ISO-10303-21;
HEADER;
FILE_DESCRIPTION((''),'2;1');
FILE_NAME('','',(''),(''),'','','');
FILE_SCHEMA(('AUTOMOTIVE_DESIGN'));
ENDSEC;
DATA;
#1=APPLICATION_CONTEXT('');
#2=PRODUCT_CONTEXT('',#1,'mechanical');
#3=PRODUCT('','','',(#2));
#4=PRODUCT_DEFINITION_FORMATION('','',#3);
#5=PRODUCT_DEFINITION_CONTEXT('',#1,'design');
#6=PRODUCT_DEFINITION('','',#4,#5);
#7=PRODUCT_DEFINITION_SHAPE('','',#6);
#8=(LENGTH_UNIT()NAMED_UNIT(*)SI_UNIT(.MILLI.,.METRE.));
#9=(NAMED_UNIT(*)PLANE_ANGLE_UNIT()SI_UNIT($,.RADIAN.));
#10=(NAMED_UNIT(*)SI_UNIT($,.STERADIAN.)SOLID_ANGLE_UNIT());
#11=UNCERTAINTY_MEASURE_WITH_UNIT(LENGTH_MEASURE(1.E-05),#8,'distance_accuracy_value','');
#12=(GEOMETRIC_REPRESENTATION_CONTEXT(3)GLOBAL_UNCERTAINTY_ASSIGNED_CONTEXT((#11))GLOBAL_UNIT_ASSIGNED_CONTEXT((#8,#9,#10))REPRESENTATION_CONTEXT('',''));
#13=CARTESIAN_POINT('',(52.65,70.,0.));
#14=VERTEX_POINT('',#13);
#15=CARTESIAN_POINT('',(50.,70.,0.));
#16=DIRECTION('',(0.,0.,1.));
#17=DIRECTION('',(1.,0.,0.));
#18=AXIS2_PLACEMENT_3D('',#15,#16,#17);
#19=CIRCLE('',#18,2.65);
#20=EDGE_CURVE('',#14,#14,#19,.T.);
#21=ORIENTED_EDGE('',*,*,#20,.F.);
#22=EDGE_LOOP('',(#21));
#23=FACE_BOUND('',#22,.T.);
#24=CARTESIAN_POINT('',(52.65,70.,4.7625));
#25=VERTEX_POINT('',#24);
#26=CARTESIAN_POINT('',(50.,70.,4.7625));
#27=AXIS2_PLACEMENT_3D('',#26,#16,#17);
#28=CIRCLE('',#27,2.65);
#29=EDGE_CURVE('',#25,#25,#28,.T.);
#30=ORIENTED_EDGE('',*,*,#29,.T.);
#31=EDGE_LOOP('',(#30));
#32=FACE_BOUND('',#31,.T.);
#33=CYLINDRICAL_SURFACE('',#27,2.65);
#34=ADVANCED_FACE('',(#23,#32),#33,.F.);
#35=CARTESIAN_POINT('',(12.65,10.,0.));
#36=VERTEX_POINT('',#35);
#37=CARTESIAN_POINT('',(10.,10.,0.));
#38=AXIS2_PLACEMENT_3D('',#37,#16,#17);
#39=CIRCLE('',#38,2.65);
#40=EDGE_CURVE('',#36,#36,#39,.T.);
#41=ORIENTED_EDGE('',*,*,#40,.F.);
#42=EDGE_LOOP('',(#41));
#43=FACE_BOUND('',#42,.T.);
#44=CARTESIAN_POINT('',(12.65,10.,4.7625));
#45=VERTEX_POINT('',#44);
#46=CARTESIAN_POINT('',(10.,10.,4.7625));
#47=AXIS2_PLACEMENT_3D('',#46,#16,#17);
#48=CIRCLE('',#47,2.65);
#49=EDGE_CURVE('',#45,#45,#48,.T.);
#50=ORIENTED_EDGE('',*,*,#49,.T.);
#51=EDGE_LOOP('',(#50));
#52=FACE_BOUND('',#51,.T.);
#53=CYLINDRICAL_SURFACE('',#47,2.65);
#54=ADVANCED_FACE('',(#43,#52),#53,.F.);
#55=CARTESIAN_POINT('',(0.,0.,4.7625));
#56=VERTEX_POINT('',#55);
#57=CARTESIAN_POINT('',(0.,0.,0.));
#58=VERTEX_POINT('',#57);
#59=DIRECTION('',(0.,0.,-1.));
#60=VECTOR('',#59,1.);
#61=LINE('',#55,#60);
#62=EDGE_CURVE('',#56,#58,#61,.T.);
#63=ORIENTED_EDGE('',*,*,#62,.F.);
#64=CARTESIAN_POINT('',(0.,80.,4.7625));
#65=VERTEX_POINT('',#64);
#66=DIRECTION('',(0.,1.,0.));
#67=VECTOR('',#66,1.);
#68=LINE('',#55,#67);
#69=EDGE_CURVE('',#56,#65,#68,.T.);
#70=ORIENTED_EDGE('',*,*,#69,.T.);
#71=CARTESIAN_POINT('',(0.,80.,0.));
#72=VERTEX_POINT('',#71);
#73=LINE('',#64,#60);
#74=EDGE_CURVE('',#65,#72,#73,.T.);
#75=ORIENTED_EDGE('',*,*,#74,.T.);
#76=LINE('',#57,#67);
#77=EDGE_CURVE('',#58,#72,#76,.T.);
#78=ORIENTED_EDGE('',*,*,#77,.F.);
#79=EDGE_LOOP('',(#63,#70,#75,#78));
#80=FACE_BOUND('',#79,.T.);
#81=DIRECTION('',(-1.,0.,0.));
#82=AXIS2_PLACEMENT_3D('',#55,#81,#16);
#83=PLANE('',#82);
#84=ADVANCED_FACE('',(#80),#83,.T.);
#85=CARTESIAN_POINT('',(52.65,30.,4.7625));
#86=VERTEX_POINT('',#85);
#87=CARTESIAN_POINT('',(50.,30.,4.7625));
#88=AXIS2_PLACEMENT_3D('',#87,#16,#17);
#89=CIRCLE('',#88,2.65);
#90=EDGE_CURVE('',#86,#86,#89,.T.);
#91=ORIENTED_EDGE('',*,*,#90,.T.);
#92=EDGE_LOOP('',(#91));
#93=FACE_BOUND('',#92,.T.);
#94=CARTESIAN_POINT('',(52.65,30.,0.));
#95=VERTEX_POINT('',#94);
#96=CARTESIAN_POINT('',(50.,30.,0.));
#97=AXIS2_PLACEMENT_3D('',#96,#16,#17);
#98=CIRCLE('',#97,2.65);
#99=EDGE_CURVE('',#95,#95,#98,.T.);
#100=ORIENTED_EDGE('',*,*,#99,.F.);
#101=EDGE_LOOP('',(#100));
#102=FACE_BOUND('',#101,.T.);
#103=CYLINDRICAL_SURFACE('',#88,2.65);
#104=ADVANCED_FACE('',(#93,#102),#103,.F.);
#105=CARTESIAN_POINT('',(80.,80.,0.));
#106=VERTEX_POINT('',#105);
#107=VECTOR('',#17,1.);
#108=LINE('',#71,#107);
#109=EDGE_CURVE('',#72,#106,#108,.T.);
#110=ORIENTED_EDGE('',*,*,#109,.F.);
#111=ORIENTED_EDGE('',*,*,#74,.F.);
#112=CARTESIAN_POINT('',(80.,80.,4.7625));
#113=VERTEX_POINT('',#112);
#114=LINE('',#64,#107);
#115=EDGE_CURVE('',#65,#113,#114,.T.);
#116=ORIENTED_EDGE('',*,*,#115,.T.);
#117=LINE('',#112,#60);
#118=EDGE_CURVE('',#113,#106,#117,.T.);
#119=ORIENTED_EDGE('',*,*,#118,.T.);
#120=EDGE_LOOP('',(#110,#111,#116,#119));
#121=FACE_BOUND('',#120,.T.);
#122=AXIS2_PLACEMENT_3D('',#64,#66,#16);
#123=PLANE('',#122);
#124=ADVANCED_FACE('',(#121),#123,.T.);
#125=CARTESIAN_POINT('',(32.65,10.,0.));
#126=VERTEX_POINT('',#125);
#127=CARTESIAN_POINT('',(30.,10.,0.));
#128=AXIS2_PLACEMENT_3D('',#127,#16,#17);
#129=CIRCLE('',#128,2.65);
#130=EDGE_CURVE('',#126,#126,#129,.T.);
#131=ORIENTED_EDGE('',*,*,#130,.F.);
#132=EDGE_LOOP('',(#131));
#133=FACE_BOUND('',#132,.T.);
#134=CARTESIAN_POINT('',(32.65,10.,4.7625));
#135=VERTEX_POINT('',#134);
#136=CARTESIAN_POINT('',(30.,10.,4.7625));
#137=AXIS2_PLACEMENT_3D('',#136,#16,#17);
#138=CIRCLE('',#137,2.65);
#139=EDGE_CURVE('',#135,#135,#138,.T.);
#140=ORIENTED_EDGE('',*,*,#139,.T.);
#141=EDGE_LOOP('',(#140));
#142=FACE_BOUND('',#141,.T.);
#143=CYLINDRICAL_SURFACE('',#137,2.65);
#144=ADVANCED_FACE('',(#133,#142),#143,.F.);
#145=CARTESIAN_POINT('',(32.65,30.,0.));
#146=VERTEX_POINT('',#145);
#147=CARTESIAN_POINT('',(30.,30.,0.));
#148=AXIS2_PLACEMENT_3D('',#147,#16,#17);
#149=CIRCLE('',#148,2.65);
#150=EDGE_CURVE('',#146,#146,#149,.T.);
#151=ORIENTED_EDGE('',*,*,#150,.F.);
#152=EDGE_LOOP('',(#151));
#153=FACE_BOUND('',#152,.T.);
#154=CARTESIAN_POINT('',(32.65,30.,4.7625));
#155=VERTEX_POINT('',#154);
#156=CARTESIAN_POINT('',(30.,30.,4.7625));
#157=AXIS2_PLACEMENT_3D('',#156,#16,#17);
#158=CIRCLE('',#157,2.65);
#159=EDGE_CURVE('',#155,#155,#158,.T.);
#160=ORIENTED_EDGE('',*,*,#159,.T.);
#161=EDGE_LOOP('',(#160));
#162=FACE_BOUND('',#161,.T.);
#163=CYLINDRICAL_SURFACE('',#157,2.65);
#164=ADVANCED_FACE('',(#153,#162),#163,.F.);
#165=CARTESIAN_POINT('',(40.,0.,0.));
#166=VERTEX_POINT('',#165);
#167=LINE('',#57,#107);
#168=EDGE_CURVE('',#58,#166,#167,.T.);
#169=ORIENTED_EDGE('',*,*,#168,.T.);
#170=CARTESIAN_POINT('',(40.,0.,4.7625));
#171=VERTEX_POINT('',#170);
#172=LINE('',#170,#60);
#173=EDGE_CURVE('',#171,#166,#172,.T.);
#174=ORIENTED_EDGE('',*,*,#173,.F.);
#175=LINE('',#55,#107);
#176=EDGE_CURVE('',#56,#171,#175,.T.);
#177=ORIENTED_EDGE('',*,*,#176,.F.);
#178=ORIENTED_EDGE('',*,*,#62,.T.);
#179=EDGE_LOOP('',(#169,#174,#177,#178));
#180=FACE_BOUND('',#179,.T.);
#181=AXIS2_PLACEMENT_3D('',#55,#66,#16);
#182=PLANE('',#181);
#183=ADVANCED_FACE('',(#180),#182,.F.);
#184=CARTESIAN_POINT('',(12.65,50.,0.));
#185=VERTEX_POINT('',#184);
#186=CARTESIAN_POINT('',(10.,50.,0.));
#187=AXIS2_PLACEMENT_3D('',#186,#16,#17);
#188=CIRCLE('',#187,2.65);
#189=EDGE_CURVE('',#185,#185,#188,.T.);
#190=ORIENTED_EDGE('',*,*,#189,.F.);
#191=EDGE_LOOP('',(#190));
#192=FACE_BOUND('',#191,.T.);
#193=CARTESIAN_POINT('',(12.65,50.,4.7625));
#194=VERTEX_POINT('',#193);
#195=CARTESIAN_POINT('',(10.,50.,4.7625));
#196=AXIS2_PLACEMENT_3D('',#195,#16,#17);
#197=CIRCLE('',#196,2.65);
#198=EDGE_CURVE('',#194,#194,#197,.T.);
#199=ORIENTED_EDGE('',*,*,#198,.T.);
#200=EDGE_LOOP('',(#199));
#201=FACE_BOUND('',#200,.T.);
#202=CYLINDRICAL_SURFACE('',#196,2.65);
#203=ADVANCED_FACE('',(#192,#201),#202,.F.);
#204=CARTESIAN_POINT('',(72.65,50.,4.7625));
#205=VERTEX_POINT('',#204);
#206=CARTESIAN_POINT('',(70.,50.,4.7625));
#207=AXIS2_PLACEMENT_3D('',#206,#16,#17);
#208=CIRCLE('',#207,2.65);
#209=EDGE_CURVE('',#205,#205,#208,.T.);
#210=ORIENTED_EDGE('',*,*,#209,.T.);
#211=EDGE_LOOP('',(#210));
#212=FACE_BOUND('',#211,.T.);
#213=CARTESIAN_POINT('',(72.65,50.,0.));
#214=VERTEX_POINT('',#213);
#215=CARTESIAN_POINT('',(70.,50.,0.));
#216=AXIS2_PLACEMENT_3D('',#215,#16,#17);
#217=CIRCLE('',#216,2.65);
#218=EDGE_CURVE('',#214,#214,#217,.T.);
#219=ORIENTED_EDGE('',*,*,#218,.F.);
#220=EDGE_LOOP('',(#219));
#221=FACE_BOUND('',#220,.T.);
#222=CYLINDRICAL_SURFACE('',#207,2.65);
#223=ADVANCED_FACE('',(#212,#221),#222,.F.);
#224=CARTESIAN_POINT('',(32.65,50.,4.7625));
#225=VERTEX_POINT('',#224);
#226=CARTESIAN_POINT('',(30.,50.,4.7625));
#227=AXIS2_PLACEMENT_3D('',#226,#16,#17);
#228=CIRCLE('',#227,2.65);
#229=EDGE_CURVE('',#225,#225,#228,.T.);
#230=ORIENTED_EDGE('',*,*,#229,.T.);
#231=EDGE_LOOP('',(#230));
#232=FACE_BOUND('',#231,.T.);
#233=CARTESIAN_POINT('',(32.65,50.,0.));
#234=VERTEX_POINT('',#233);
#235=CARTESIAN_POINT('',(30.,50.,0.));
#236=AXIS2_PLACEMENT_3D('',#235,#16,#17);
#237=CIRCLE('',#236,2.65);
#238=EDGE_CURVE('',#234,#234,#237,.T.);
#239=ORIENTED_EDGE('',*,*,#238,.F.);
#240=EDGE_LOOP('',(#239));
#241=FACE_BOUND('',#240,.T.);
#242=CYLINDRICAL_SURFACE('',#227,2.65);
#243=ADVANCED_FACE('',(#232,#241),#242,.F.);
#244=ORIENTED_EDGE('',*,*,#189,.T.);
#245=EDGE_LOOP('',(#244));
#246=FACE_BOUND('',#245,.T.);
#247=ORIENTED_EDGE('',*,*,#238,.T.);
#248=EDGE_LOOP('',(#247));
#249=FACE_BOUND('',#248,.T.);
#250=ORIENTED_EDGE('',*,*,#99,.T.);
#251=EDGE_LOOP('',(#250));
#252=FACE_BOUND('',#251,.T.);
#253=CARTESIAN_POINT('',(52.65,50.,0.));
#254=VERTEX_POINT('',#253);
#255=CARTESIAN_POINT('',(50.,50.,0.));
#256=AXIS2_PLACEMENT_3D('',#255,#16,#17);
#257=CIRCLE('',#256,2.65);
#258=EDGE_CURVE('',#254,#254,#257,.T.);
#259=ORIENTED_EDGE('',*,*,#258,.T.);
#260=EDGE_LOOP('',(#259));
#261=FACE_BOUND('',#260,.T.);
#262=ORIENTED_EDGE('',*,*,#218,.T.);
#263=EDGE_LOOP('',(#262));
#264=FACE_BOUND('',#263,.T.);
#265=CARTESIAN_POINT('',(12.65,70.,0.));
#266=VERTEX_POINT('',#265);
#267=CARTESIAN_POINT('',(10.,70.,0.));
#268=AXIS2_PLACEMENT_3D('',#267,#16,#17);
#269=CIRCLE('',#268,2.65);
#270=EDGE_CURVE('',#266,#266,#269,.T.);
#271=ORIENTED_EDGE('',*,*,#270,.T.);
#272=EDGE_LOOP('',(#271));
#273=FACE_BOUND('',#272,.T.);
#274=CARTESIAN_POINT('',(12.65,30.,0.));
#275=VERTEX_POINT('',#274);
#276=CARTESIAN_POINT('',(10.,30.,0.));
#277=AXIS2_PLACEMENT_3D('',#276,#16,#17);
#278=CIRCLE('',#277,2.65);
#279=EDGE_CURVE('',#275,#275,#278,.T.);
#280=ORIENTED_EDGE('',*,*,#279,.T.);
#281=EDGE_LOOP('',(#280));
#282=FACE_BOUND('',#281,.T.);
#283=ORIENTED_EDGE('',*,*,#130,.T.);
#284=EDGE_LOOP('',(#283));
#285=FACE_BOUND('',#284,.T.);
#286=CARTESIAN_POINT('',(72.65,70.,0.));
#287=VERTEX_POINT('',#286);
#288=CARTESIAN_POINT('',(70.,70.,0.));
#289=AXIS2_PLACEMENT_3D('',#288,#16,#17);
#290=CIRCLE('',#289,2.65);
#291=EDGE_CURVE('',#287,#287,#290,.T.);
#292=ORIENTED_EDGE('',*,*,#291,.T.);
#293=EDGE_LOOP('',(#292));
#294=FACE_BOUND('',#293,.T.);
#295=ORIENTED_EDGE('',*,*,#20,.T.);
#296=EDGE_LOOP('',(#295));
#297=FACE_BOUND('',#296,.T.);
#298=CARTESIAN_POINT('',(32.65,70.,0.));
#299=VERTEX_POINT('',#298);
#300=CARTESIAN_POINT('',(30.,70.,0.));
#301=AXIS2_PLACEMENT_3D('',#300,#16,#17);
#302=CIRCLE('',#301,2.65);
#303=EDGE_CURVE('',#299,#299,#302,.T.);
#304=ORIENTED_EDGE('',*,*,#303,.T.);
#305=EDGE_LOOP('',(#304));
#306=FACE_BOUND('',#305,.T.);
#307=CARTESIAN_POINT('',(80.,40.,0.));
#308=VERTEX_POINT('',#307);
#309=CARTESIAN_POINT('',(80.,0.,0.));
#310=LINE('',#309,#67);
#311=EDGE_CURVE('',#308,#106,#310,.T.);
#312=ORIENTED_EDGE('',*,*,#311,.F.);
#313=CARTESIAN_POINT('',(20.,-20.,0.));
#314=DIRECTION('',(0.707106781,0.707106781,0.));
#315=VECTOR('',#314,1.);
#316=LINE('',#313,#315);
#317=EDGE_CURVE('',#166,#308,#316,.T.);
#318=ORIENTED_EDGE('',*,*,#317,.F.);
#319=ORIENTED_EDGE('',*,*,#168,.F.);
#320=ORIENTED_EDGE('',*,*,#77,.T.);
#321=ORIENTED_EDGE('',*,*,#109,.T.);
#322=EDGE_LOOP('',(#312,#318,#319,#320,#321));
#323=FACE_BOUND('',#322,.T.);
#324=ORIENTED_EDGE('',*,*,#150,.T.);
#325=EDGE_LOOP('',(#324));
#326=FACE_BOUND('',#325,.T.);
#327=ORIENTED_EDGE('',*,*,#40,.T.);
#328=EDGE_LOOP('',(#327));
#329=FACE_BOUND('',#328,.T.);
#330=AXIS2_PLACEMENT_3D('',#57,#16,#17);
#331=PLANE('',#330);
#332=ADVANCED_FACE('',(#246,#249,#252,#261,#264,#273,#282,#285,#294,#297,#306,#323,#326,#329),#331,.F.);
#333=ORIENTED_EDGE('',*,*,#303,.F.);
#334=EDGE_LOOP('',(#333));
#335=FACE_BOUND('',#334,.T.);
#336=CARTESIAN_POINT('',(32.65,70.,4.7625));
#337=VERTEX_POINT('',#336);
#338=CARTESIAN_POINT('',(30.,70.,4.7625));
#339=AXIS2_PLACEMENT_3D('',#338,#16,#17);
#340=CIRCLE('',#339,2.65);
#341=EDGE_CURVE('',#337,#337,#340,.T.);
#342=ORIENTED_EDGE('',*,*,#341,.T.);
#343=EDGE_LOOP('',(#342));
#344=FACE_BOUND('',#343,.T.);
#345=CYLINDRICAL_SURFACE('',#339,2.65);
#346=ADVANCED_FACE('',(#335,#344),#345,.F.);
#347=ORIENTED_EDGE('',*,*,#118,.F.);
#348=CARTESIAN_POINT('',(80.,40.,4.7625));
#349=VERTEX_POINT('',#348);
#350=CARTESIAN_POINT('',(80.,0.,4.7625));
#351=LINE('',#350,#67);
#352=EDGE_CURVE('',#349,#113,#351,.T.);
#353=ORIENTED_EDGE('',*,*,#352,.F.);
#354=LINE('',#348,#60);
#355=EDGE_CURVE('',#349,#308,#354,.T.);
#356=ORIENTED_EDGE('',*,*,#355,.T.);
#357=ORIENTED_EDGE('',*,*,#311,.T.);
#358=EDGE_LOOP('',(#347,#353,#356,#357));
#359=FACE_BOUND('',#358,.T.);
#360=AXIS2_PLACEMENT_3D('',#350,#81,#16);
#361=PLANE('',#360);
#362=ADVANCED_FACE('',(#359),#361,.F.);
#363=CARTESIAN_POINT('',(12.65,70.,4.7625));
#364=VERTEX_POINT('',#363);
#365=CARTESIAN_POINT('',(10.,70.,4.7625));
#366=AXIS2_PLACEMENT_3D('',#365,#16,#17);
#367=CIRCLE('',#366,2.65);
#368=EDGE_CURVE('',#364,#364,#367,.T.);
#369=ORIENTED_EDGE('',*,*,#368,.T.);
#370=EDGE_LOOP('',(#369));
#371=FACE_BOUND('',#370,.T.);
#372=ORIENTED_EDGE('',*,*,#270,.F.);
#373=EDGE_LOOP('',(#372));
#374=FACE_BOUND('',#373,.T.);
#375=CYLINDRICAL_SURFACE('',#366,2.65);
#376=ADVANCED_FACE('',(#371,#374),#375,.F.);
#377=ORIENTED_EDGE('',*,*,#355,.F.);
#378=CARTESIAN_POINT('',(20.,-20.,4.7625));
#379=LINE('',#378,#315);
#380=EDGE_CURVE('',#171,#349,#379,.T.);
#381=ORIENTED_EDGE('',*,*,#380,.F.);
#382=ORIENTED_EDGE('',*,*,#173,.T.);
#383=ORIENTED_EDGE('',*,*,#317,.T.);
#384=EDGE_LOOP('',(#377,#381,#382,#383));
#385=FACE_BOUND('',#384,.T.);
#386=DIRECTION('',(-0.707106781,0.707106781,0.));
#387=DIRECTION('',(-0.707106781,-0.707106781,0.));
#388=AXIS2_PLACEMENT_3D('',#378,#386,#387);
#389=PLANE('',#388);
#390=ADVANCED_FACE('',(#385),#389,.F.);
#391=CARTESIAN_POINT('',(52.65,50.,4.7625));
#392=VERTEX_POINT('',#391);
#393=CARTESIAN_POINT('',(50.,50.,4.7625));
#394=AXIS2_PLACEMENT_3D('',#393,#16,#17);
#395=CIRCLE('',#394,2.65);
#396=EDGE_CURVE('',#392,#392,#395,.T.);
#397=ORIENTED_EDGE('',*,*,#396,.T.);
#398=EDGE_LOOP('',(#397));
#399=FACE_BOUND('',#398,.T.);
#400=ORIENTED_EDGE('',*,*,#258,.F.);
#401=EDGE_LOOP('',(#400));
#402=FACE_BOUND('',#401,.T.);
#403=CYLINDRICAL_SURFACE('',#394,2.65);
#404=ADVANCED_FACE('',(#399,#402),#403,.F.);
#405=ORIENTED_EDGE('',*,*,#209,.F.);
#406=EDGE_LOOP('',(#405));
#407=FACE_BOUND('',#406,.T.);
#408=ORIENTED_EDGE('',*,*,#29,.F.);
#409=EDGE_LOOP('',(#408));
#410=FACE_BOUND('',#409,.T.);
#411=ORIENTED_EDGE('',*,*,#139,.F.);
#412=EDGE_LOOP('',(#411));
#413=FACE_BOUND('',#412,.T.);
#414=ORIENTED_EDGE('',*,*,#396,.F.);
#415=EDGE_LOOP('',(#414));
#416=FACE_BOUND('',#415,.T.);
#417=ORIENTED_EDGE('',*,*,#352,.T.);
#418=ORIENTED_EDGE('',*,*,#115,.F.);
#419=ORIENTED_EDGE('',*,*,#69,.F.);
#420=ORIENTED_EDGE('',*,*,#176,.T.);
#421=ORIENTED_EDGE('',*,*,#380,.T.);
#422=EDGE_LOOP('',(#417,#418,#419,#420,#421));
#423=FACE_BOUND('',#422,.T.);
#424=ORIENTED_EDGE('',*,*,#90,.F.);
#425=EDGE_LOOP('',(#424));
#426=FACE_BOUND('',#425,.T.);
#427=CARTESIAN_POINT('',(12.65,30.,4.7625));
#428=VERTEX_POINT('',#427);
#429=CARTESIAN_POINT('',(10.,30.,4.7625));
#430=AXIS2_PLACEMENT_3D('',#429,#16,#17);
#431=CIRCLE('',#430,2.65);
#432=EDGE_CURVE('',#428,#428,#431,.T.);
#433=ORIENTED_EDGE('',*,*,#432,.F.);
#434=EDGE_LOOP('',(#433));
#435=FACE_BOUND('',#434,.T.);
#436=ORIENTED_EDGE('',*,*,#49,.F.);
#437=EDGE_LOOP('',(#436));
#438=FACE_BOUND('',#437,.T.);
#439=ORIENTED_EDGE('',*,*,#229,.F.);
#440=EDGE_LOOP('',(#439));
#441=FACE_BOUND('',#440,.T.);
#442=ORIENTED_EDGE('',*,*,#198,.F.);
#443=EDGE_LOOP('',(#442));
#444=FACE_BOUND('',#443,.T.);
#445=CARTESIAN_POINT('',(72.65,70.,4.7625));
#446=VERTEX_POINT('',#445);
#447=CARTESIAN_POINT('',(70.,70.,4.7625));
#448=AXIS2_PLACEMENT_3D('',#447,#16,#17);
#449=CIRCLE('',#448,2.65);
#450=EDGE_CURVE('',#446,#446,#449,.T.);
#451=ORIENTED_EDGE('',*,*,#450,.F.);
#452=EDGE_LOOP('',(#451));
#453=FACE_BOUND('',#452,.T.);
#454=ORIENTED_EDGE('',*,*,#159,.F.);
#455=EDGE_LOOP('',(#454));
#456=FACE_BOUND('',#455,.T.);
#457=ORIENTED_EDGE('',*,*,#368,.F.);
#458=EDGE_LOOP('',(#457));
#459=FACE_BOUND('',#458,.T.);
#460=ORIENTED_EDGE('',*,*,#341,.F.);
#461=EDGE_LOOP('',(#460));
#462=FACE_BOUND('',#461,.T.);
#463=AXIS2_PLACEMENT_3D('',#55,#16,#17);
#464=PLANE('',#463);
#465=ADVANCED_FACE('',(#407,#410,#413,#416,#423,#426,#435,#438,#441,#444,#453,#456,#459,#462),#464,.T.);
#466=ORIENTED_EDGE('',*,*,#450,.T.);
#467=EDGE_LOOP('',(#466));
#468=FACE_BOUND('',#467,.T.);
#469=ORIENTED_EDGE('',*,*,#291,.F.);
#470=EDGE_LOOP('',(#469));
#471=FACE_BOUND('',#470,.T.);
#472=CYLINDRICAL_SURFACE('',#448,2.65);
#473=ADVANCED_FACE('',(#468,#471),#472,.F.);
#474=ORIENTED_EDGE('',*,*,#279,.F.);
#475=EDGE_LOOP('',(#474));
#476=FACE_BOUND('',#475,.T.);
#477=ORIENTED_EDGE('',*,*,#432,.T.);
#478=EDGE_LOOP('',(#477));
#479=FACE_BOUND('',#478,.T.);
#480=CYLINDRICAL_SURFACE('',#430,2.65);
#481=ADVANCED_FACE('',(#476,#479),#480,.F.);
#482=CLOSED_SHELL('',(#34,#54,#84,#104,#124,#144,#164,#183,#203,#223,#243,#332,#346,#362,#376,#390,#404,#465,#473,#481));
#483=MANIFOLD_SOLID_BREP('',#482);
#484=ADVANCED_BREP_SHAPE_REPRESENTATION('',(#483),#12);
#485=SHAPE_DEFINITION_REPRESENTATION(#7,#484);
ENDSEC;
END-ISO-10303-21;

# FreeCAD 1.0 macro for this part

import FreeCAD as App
import Part
import Sketcher
from FreeCAD import Vector


def add_polygon(sketch, points):
    """Adds a closed chain of lines whose ends are joined by coincident constraints."""
    first, n = sketch.GeometryCount, len(points)
    for a, b in zip(points, points[1:] + points[:1]):
        sketch.addGeometry(Part.LineSegment(App.Vector(*a, 0), App.Vector(*b, 0)), False)
    for i in range(n):
        sketch.addConstraint(Sketcher.Constraint("Coincident", first + i, 2, first + (i + 1) % n, 1))

doc = App.newDocument("Part")
body = doc.addObject("PartDesign::Body", "Body")

sketch1 = doc.addObject("Sketcher::SketchObject", "Sketch")
body.addObject(sketch1)
sketch1.AttachmentSupport = (doc.XY_Plane, [""])
sketch1.MapMode = "FlatFace"
add_polygon(sketch1, [(0, 0), (40, 0), (80, 40), (80, 80), (0, 80)])
sketch1.addConstraint([
    Sketcher.Constraint("Horizontal", 0),
    Sketcher.Constraint("Vertical", 2),
    Sketcher.Constraint("Horizontal", 3),
    Sketcher.Constraint("Vertical", 4),
    Sketcher.Constraint("Coincident", 4, 2, -1, 1),
    Sketcher.Constraint("Equal", 0, 2),
    Sketcher.Constraint("Equal", 3, 4),
    Sketcher.Constraint("DistanceX", 0, 1, 0, 2, 40.0),
    Sketcher.Constraint("DistanceX", 3, 2, 3, 1, 80.0),
])
pad1 = doc.addObject("PartDesign::Pad", "Pad")
body.addObject(pad1)
pad1.Profile = sketch1
pad1.Length = 4.7625

sketch2 = doc.addObject("Sketcher::SketchObject", "Sketch001")
body.addObject(sketch2)
sketch2.AttachmentSupport = (doc.XY_Plane, [""])
sketch2.MapMode = "FlatFace"
sketch2.AttachmentOffset = App.Placement(Vector(0, 0, 4.7625), App.Rotation())
sketch2.addGeometry([
    Part.Circle(Vector(10, 70, 0), Vector(0, 0, 1), 2.6),
    Part.Circle(Vector(30, 70, 0), Vector(0, 0, 1), 2.6),
    Part.Circle(Vector(50, 70, 0), Vector(0, 0, 1), 2.6),
    Part.Circle(Vector(70, 70, 0), Vector(0, 0, 1), 2.6),
    Part.Circle(Vector(30, 50, 0), Vector(0, 0, 1), 2.6),
    Part.Circle(Vector(50, 50, 0), Vector(0, 0, 1), 2.6),
    Part.Circle(Vector(70, 50, 0), Vector(0, 0, 1), 2.6),
    Part.Circle(Vector(30, 30, 0), Vector(0, 0, 1), 2.6),
    Part.Circle(Vector(50, 30, 0), Vector(0, 0, 1), 2.6),
    Part.Circle(Vector(30, 10, 0), Vector(0, 0, 1), 2.6),
    Part.Circle(Vector(10, 50, 0), Vector(0, 0, 1), 2.6),
    Part.Circle(Vector(10, 30, 0), Vector(0, 0, 1), 2.6),
    Part.Circle(Vector(10, 10, 0), Vector(0, 0, 1), 2.6),
], False)
sketch2.addConstraint([
    Sketcher.Constraint("Equal", 0, 1),
    Sketcher.Constraint("Equal", 1, 2),
    Sketcher.Constraint("Equal", 2, 3),
    Sketcher.Constraint("Equal", 3, 4),
    Sketcher.Constraint("Equal", 4, 5),
    Sketcher.Constraint("Equal", 5, 6),
    Sketcher.Constraint("Equal", 6, 7),
    Sketcher.Constraint("Equal", 7, 8),
    Sketcher.Constraint("Equal", 8, 9),
    Sketcher.Constraint("Equal", 9, 10),
    Sketcher.Constraint("Equal", 10, 11),
    Sketcher.Constraint("Equal", 11, 12),
    Sketcher.Constraint("Horizontal", 0, 3, 1, 3),
    Sketcher.Constraint("Horizontal", 1, 3, 2, 3),
    Sketcher.Constraint("Horizontal", 2, 3, 3, 3),
    Sketcher.Constraint("Horizontal", 4, 3, 5, 3),
    Sketcher.Constraint("Horizontal", 5, 3, 6, 3),
    Sketcher.Constraint("Horizontal", 7, 3, 8, 3),
    Sketcher.Constraint("Horizontal", 6, 3, 10, 3),
    Sketcher.Constraint("Horizontal", 8, 3, 11, 3),
    Sketcher.Constraint("Horizontal", 9, 3, 12, 3),
    Sketcher.Constraint("Vertical", 1, 3, 4, 3),
    Sketcher.Constraint("Vertical", 2, 3, 5, 3),
    Sketcher.Constraint("Vertical", 3, 3, 6, 3),
    Sketcher.Constraint("Vertical", 4, 3, 7, 3),
    Sketcher.Constraint("Vertical", 5, 3, 8, 3),
    Sketcher.Constraint("Vertical", 7, 3, 9, 3),
    Sketcher.Constraint("Vertical", 0, 3, 10, 3),
    Sketcher.Constraint("Vertical", 10, 3, 11, 3),
    Sketcher.Constraint("Vertical", 11, 3, 12, 3),
    Sketcher.Constraint("Diameter", 0, 5.3),
    Sketcher.Constraint("DistanceX", -1, 1, 0, 3, 10.0),
    Sketcher.Constraint("DistanceY", -1, 1, 0, 3, 70.0),
    Sketcher.Constraint("DistanceX", -1, 1, 1, 3, 30.0),
    Sketcher.Constraint("DistanceX", -1, 1, 2, 3, 50.0),
    Sketcher.Constraint("DistanceX", -1, 1, 3, 3, 70.0),
    Sketcher.Constraint("DistanceY", -1, 1, 4, 3, 50.0),
    Sketcher.Constraint("DistanceY", -1, 1, 7, 3, 30.0),
    Sketcher.Constraint("DistanceY", -1, 1, 9, 3, 10.0),
])
doc.recompute()
hole = doc.addObject("PartDesign::Hole", "Hole")
body.addObject(hole)
hole.Profile = sketch2
hole.ThreadType = "None"
hole.Diameter = 5.3
hole.DepthType = "ThroughAll"

doc.recompute()
